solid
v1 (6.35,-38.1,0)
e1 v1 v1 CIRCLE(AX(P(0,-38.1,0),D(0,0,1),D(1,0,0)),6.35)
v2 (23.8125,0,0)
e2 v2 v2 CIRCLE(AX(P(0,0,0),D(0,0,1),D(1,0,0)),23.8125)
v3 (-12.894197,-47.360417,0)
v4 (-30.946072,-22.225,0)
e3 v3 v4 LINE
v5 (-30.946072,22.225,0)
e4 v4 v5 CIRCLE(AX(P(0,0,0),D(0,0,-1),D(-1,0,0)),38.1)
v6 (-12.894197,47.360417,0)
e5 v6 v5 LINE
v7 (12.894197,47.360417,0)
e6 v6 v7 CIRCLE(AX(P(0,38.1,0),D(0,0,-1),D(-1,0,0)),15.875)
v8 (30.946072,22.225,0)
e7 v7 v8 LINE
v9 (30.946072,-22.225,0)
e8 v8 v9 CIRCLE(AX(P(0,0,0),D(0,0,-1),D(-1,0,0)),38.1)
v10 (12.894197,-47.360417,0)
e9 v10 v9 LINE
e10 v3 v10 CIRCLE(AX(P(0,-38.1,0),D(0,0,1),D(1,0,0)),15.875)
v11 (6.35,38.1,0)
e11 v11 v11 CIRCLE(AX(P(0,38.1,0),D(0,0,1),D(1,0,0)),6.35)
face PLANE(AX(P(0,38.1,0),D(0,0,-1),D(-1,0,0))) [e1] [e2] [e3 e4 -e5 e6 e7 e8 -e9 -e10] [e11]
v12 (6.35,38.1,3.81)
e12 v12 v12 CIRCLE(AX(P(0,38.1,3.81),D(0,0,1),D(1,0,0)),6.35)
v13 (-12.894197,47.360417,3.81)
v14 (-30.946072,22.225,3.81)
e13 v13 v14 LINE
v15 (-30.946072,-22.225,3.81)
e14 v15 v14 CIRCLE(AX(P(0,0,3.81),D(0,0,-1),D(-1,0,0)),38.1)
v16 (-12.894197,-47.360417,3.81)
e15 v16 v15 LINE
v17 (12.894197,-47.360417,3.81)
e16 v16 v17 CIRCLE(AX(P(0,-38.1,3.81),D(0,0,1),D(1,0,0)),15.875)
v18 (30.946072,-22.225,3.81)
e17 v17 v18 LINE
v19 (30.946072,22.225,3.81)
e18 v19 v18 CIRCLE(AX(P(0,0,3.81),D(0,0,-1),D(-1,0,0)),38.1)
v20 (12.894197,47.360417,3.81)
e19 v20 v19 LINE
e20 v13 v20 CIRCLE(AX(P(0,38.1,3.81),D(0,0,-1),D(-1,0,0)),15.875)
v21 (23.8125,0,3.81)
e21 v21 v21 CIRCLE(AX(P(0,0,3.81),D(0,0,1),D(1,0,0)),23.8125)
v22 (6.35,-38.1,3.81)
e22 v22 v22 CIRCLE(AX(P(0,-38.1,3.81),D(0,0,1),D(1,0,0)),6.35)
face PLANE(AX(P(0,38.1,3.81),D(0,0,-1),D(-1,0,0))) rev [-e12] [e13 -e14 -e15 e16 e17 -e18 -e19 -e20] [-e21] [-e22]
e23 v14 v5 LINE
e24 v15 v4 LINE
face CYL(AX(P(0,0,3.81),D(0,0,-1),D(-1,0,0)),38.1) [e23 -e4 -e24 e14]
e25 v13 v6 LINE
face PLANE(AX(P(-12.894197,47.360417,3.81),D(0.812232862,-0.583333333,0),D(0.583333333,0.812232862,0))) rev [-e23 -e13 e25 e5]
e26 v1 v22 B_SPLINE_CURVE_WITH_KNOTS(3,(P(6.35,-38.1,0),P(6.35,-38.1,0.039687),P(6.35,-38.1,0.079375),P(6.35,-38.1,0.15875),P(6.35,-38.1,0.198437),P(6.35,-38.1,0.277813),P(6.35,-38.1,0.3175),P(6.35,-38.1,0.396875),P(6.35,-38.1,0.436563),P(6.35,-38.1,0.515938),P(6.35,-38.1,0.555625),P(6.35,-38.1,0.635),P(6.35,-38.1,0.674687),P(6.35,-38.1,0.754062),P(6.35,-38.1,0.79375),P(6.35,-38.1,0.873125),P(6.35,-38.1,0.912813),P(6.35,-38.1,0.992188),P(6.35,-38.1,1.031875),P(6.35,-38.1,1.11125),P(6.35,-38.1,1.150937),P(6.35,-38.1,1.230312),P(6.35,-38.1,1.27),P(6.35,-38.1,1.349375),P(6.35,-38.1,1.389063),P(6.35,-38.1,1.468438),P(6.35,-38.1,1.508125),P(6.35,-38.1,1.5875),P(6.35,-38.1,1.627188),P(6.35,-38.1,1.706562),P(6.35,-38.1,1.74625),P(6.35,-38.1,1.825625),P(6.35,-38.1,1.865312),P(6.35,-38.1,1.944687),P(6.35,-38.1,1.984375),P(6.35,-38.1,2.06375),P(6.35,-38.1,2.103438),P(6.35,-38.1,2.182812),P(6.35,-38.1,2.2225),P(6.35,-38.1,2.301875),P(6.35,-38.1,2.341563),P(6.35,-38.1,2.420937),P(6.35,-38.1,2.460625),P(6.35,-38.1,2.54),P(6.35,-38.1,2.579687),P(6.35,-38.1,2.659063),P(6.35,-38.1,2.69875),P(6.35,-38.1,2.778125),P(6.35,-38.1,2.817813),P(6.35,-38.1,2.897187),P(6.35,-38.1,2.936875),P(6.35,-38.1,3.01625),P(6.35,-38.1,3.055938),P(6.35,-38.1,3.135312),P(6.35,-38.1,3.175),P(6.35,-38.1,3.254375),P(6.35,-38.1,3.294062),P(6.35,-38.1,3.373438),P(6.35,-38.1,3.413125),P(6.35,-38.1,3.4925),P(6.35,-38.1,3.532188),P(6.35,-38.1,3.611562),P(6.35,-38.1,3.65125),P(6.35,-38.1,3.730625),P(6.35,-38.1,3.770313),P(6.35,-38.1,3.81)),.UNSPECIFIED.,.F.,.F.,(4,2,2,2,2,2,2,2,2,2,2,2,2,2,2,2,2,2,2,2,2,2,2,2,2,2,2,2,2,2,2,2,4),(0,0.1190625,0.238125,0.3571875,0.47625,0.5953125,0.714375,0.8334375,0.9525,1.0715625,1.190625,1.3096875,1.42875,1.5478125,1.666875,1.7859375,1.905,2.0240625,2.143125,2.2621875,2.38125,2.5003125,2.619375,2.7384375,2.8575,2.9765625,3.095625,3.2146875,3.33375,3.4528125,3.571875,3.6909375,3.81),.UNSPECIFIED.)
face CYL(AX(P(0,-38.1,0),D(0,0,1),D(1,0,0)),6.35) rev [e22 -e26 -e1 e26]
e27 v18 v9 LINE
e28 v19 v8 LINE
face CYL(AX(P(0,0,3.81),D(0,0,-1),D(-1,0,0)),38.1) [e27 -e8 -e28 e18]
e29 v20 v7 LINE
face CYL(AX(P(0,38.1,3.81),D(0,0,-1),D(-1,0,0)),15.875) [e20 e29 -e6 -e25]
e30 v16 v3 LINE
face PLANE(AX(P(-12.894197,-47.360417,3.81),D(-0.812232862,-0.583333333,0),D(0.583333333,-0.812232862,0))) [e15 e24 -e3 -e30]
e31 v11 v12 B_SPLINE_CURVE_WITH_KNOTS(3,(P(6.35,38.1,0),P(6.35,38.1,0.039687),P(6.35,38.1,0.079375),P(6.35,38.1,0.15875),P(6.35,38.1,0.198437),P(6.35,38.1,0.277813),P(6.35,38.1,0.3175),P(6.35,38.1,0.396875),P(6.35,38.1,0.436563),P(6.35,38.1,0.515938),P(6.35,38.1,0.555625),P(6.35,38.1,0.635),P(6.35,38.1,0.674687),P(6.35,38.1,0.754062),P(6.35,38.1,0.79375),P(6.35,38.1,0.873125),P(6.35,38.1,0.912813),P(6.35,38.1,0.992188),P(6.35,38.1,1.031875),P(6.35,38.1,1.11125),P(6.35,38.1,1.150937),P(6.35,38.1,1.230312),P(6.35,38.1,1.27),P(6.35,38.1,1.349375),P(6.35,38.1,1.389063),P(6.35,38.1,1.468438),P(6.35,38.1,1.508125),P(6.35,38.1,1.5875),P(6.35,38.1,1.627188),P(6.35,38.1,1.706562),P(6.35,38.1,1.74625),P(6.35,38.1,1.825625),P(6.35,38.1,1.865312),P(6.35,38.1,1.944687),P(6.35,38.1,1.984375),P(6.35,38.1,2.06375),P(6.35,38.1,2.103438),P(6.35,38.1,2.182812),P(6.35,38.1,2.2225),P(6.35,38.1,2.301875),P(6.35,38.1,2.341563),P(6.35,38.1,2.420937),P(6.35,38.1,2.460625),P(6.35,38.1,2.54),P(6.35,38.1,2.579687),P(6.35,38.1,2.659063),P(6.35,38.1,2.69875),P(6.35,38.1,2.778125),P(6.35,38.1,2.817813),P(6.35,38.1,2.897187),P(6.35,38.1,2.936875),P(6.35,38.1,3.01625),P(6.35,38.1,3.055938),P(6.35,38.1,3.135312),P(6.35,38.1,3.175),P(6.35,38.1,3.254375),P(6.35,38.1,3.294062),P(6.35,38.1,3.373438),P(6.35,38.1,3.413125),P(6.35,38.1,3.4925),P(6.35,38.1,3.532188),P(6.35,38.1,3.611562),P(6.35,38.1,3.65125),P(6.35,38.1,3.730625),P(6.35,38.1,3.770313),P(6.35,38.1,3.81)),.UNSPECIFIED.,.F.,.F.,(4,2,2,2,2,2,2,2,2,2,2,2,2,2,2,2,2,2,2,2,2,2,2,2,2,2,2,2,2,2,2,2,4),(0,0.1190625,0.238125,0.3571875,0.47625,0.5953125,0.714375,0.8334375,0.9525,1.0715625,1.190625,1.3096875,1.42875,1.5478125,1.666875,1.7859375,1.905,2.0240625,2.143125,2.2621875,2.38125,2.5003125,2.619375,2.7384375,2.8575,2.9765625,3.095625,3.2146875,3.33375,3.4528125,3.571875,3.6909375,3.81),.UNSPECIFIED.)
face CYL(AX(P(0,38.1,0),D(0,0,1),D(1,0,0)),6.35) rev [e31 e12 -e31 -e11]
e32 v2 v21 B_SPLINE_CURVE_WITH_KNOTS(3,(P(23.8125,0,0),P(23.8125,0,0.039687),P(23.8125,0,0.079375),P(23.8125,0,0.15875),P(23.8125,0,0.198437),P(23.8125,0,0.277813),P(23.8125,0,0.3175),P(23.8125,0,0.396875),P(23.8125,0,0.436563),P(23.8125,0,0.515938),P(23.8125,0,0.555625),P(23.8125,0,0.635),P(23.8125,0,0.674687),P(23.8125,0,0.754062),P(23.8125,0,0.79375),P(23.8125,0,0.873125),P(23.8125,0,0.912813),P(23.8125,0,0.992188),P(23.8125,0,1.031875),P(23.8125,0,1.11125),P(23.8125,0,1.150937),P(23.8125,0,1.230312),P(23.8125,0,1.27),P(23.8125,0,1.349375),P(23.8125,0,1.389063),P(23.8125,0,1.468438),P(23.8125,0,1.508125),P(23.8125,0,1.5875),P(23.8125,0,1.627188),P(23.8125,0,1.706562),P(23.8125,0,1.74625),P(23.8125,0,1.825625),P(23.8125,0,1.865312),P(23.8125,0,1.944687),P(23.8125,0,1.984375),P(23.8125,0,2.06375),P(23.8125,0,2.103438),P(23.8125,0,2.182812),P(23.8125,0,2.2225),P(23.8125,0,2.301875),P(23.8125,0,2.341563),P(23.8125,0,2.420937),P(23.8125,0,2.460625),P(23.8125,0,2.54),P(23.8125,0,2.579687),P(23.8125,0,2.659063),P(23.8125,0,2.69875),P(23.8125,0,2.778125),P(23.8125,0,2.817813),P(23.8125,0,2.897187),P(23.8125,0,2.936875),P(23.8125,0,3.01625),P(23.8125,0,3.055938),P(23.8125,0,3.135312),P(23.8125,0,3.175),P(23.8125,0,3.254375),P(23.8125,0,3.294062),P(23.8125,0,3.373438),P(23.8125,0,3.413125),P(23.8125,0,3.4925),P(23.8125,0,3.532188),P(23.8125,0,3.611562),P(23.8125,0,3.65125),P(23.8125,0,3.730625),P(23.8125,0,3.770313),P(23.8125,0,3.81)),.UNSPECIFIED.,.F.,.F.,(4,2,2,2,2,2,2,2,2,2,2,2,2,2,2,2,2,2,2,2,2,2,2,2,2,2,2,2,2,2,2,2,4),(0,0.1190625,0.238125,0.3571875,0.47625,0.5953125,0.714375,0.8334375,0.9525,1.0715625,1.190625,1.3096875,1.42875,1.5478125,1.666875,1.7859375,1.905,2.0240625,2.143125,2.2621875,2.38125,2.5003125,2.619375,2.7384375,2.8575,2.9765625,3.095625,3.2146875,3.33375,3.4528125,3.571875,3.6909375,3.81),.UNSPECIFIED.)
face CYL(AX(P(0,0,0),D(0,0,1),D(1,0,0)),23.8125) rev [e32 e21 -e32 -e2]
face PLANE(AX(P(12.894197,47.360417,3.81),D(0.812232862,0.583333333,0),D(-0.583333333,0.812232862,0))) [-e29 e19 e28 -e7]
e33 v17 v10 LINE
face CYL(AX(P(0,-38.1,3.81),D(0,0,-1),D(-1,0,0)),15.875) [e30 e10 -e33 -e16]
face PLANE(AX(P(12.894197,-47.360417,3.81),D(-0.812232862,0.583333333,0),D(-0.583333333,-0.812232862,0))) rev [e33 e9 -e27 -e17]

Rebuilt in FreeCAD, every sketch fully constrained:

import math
import FreeCAD as App
import Part
import Sketcher
Q = App.Units.Quantity

doc = App.newDocument("Part")
params = doc.addObject("Spreadsheet::Sheet", "Params")
for row, (alias, value) in enumerate([
    ("sketch1_radius", "1.5 in"),
    ("sketch1_radius2", "0.625 in"),
    ("pad1_length", "0.15 in"),
    ("sketch2_diameter", "0.5 in"),
    ("sketch2_diameter2", "1.875 in"),
], start=1):
    params.set(f"A{row}", alias)
    params.set(f"B{row}", "=" + value)
    params.setAlias(f"B{row}", alias)

body = doc.addObject("PartDesign::Body", "Body")

sketch1 = body.newObject("Sketcher::SketchObject", "Sketch")
sketch1.AttachmentSupport = (doc.getObject("XY_Plane"), [""])
sketch1.MapMode = "FlatFace"
sketch1.addGeometry(Part.LineSegment(App.Vector(31, 22, 0), App.Vector(13, 47, 0)), False)
sketch1.addGeometry(Part.ArcOfCircle(Part.Circle(App.Vector(0, 38, 0), App.Vector(0, 0, 1), 16), math.radians(36), math.radians(144)), False)
sketch1.addGeometry(Part.LineSegment(App.Vector(-13, 47, 0), App.Vector(-31, 22, 0)), False)
sketch1.addGeometry(Part.ArcOfCircle(Part.Circle(App.Vector(0, 0, 0), App.Vector(0, 0, 1), 38), math.radians(144), math.radians(216)), False)
sketch1.addGeometry(Part.LineSegment(App.Vector(-31, -22, 0), App.Vector(-13, -47, 0)), False)
sketch1.addGeometry(Part.ArcOfCircle(Part.Circle(App.Vector(0, -38, 0), App.Vector(0, 0, 1), 16), math.radians(-144), math.radians(-36)), False)
sketch1.addGeometry(Part.LineSegment(App.Vector(13, -47, 0), App.Vector(31, -22, 0)), False)
sketch1.addGeometry(Part.ArcOfCircle(Part.Circle(App.Vector(0, 0, 0), App.Vector(0, 0, 1), 38), math.radians(-36), math.radians(36)), False)
sketch1.addConstraint(Sketcher.Constraint("Tangent", 0, 2, 1, 1))
sketch1.addConstraint(Sketcher.Constraint("Tangent", 1, 2, 2, 1))
sketch1.addConstraint(Sketcher.Constraint("Tangent", 2, 2, 3, 1))
sketch1.addConstraint(Sketcher.Constraint("Tangent", 3, 2, 4, 1))
sketch1.addConstraint(Sketcher.Constraint("Tangent", 4, 2, 5, 1))
sketch1.addConstraint(Sketcher.Constraint("Tangent", 5, 2, 6, 1))
sketch1.addConstraint(Sketcher.Constraint("Tangent", 6, 2, 7, 1))
sketch1.addConstraint(Sketcher.Constraint("Tangent", 7, 2, 0, 1))
sketch1.addConstraint(Sketcher.Constraint("Coincident", 3, 3, -1, 1))
sketch1.addConstraint(Sketcher.Constraint("Coincident", 7, 3, -1, 1))
sketch1.addConstraint(Sketcher.Constraint("Equal", 1, 5))
sketch1.addConstraint(Sketcher.Constraint("Equal", 3, 7))
sketch1.addConstraint(Sketcher.Constraint("Symmetric", 1, 3, 5, 3, -1, 1))
sketch1.addConstraint(Sketcher.Constraint("PointOnObject", 1, 3, -2))
sketch1.addConstraint(Sketcher.Constraint("Radius", 3, Q("1.5 in")))
sketch1.addConstraint(Sketcher.Constraint("Radius", 1, Q("0.625 in")))
sketch1.addConstraint(Sketcher.Constraint("DistanceY", 5, 3, 1, 3, Q("3 in")))
sketch1.setExpression("Constraints[14]", "Params.sketch1_radius")
sketch1.setExpression("Constraints[15]", "Params.sketch1_radius2")
pad1 = body.newObject("PartDesign::Pad", "Pad")
pad1.Profile = sketch1
pad1.setExpression("Length", "Params.pad1_length")

sketch2 = body.newObject("Sketcher::SketchObject", "Sketch001")
sketch2.AttachmentSupport = (doc.getObject("XY_Plane"), [""])
sketch2.MapMode = "FlatFace"
sketch2.AttachmentOffset = App.Placement(App.Vector(0, 0, 0.15 * 25.4), App.Rotation())
sketch2.addGeometry(Part.Circle(App.Vector(0, 38, 0), App.Vector(0, 0, 1), 6), False)
sketch2.addGeometry(Part.Circle(App.Vector(0, -38, 0), App.Vector(0, 0, 1), 6), False)
sketch2.addGeometry(Part.Circle(App.Vector(0, 0, 0), App.Vector(0, 0, 1), 24), False)
sketch2.addConstraint(Sketcher.Constraint("Coincident", 2, 3, -1, 1))
sketch2.addConstraint(Sketcher.Constraint("Equal", 0, 1))
sketch2.addConstraint(Sketcher.Constraint("Symmetric", 0, 3, 1, 3, -1, 1))
sketch2.addConstraint(Sketcher.Constraint("PointOnObject", 0, 3, -2))
sketch2.addConstraint(Sketcher.Constraint("Diameter", 0, Q("0.5 in")))
sketch2.addConstraint(Sketcher.Constraint("Diameter", 2, Q("1.875 in")))
sketch2.addConstraint(Sketcher.Constraint("DistanceY", 1, 3, 0, 3, Q("3 in")))
sketch2.setExpression("Constraints[4]", "Params.sketch2_diameter")
sketch2.setExpression("Constraints[5]", "Params.sketch2_diameter2")
pocket1 = body.newObject("PartDesign::Pocket", "Pocket")
pocket1.Profile = sketch2
pocket1.Type = "ThroughAll"

doc.recompute()
